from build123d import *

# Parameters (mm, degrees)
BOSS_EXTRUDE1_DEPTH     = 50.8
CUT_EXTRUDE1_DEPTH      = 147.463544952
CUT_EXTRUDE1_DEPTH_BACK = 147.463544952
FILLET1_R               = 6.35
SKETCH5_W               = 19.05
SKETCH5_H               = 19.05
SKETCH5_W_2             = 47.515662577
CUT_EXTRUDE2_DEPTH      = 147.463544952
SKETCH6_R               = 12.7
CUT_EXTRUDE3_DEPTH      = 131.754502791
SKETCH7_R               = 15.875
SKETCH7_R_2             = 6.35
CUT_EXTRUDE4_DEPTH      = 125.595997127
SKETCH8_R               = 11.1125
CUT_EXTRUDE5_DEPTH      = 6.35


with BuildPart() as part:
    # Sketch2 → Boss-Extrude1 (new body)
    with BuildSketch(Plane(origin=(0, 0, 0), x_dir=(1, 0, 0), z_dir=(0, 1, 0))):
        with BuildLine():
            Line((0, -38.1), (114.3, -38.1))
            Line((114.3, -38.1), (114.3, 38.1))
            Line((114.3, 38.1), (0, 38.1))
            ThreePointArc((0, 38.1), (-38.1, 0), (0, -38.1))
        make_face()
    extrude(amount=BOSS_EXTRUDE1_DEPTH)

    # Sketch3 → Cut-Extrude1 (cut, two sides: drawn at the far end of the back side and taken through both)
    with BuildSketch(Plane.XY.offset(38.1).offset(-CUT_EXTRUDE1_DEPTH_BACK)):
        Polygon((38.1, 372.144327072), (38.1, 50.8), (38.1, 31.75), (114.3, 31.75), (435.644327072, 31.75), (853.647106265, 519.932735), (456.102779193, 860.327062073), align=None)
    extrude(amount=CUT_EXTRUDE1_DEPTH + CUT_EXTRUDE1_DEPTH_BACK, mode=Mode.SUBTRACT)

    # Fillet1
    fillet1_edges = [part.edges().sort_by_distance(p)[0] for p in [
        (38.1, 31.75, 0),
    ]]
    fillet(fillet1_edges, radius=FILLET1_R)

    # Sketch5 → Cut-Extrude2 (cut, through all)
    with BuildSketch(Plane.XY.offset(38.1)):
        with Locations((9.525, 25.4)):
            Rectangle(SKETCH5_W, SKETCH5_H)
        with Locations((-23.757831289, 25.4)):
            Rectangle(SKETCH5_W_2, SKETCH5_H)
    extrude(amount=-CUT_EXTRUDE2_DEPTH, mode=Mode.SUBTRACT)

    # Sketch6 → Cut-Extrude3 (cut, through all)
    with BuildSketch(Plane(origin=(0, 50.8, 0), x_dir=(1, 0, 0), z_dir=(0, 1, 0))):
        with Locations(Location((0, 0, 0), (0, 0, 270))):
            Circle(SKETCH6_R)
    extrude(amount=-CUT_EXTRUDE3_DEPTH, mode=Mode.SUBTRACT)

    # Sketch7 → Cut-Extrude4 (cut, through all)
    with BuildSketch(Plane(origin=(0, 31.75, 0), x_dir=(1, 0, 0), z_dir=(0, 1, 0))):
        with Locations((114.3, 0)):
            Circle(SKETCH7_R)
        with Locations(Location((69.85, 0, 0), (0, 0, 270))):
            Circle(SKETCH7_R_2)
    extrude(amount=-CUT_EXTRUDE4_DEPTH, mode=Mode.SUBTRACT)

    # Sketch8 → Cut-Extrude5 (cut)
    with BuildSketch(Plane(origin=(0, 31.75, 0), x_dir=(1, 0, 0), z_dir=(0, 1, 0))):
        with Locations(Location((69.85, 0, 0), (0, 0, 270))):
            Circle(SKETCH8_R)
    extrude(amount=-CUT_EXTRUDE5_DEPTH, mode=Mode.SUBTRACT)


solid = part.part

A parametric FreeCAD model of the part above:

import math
import FreeCAD as App
import Part
import Sketcher
from FreeCAD import Vector
Q = App.Units.Quantity


def edges_at(feature, points):
    """Names of the edges that pass closest to the given points."""
    edges = feature.Shape.Edges
    near = lambda p: min(range(len(edges)), key=lambda i: edges[i].distToShape(Part.Vertex(*p))[0])
    return sorted({f"Edge{near(p) + 1}" for p in points})


def add_polygon(sketch, points):
    """Adds a closed chain of lines whose ends are joined by coincident constraints."""
    first, n = sketch.GeometryCount, len(points)
    for a, b in zip(points, points[1:] + points[:1]):
        sketch.addGeometry(Part.LineSegment(App.Vector(*a, 0), App.Vector(*b, 0)), False)
    for i in range(n):
        sketch.addConstraint(Sketcher.Constraint("Coincident", first + i, 2, first + (i + 1) % n, 1))

doc = App.newDocument("Part")
body = doc.addObject("PartDesign::Body", "Body")

# Sketch on XZ plane
sketch1 = body.newObject("Sketcher::SketchObject", "Sketch")
sketch1.AttachmentSupport = (doc.getObject("XZ_Plane"), [""])
sketch1.MapMode = "FlatFace"
sketch1.addGeometry([
    Part.LineSegment(Vector(0, 38, 0), Vector(114, 38, 0)),
    Part.LineSegment(Vector(114, 38, 0), Vector(114, -38, 0)),
    Part.LineSegment(Vector(114, -38, 0), Vector(0, -38, 0)),
    Part.ArcOfCircle(Part.Circle(Vector(0, 0, 0), Vector(0, 0, 1), 38), math.radians(90), math.radians(270)),
], False)
sketch1.addConstraint([
    Sketcher.Constraint("Coincident", 0, 2, 1, 1),
    Sketcher.Constraint("Coincident", 1, 2, 2, 1),
    Sketcher.Constraint("Tangent", 2, 2, 3, 2),
    Sketcher.Constraint("Tangent", 3, 1, 0, 1),
    Sketcher.Constraint("Horizontal", 0),
    Sketcher.Constraint("Vertical", 1),
    Sketcher.Constraint("Horizontal", 2),
    Sketcher.Constraint("Coincident", 3, 3, -1, 1),
    Sketcher.Constraint("Radius", 3, Q("1.5 in")),
    Sketcher.Constraint("DistanceX", 0, 1, 0, 2, Q("4.5 in")),
])
pad1 = body.newObject("PartDesign::Pad", "Pad")
pad1.Profile = sketch1
pad1.Length = Q("2 in")
pad1.Reversed = True

# Sketch on XY plane
sketch2 = body.newObject("Sketcher::SketchObject", "Sketch001")
sketch2.AttachmentSupport = (doc.getObject("XY_Plane"), [""])
sketch2.MapMode = "FlatFace"
sketch2.AttachmentOffset = App.Placement(Vector(0, 0, 1.5 * 25.4), App.Rotation())
add_polygon(sketch2, [(38, 372), (38, 32), (436, 32), (854, 520), (456, 860)])  # lines 0-4
sketch2.addConstraint([
    Sketcher.Constraint("Vertical", 0),
    Sketcher.Constraint("Horizontal", 1),
    Sketcher.Constraint("Perpendicular", 2, 3),
    Sketcher.Constraint("Perpendicular", 3, 4),
    Sketcher.Constraint("Equal", 2, 4),
    Sketcher.Constraint("DistanceX", -1, 1, 0, 2, Q("1.5 in")),
    Sketcher.Constraint("DistanceY", -1, 1, 0, 2, Q("1.25 in")),
    Sketcher.Constraint("DistanceX", 1, 1, 1, 2, Q("397.544327 mm")),
    Sketcher.Constraint("DistanceY", 0, 2, 0, 1, Q("340.394327 mm")),
    Sketcher.Constraint("DistanceX", -1, 1, 3, 2, Q("456.102779 mm")),
])
pocket1 = body.newObject("PartDesign::Pocket", "Pocket")
pocket1.Profile = sketch2
pocket1.Type = "ThroughAll"
pocket1.Midplane = True
doc.recompute()

fillet = body.newObject("PartDesign::Fillet", "Fillet")
fillet.Base = (pocket1, edges_at(pocket1, [(38.1, 31.75, 0)]))
fillet.Radius = Q("0.25 in")

# Sketch on XY plane
sketch3 = body.newObject("Sketcher::SketchObject", "Sketch002")
sketch3.AttachmentSupport = (doc.getObject("XY_Plane"), [""])
sketch3.MapMode = "FlatFace"
sketch3.AttachmentOffset = App.Placement(Vector(0, 0, 1.5 * 25.4), App.Rotation())
add_polygon(sketch3, [(19, 16), (19, 35), (-48, 35), (-48, 16)])  # lines 0-3
sketch3.addConstraint([
    Sketcher.Constraint("Vertical", 0),
    Sketcher.Constraint("Horizontal", 1),
    Sketcher.Constraint("Vertical", 2),
    Sketcher.Constraint("Horizontal", 3),
    Sketcher.Constraint("DistanceY", 0, 1, 0, 2, Q("0.75 in")),
    Sketcher.Constraint("DistanceX", -1, 1, 0, 2, Q("0.75 in")),
    Sketcher.Constraint("DistanceY", -1, 1, 0, 2, Q("1.375 in")),
    Sketcher.Constraint("DistanceX", 1, 2, 1, 1, Q("66.565663 mm")),
])
pocket2 = body.newObject("PartDesign::Pocket", "Pocket001")
pocket2.Profile = sketch3
pocket2.Type = "ThroughAll"

# Sketch on XZ plane
sketch4 = body.newObject("Sketcher::SketchObject", "Sketch003")
sketch4.AttachmentSupport = (doc.getObject("XZ_Plane"), [""])
sketch4.MapMode = "FlatFace"
sketch4.AttachmentOffset = App.Placement(Vector(0, 0, -2 * 25.4), App.Rotation())
sketch4.addGeometry(Part.Circle(Vector(0, 0, 0), Vector(0, 0, 1), 13), False)
sketch4.addConstraint([
    Sketcher.Constraint("Coincident", 0, 3, -1, 1),
    Sketcher.Constraint("Diameter", 0, Q("1 in")),
])
pocket3 = body.newObject("PartDesign::Pocket", "Pocket002")
pocket3.Profile = sketch4
pocket3.Type = "ThroughAll"
pocket3.Reversed = True

# Sketch on XZ plane
sketch5 = body.newObject("Sketcher::SketchObject", "Sketch004")
sketch5.AttachmentSupport = (doc.getObject("XZ_Plane"), [""])
sketch5.MapMode = "FlatFace"
sketch5.AttachmentOffset = App.Placement(Vector(0, 0, -1.25 * 25.4), App.Rotation())
sketch5.addGeometry([
    Part.Circle(Vector(114, 0, 0), Vector(0, 0, 1), 16),
    Part.Circle(Vector(70, 0, 0), Vector(0, 0, 1), 6),
], False)
sketch5.addConstraint([
    Sketcher.Constraint("PointOnObject", 0, 3, -1),
    Sketcher.Constraint("PointOnObject", 1, 3, -1),
    Sketcher.Constraint("Diameter", 1, Q("0.5 in")),
    Sketcher.Constraint("Diameter", 0, Q("1.25 in")),
    Sketcher.Constraint("DistanceX", -1, 1, 0, 3, Q("4.5 in")),
    Sketcher.Constraint("DistanceX", -1, 1, 1, 3, Q("2.75 in")),
])
pocket4 = body.newObject("PartDesign::Pocket", "Pocket003")
pocket4.Profile = sketch5
pocket4.Type = "ThroughAll"
pocket4.Reversed = True

# Sketch on XZ plane
sketch6 = body.newObject("Sketcher::SketchObject", "Sketch005")
sketch6.AttachmentSupport = (doc.getObject("XZ_Plane"), [""])
sketch6.MapMode = "FlatFace"
sketch6.AttachmentOffset = App.Placement(Vector(0, 0, -1.25 * 25.4), App.Rotation())
sketch6.addGeometry(Part.Circle(Vector(70, 0, 0), Vector(0, 0, 1), 11), False)
sketch6.addConstraint([
    Sketcher.Constraint("PointOnObject", 0, 3, -1),
    Sketcher.Constraint("Diameter", 0, Q("0.875 in")),
    Sketcher.Constraint("DistanceX", -1, 1, 0, 3, Q("2.75 in")),
])
pocket5 = body.newObject("PartDesign::Pocket", "Pocket004")
pocket5.Profile = sketch6
pocket5.Length = Q("0.25 in")
pocket5.Reversed = True

doc.recompute()
